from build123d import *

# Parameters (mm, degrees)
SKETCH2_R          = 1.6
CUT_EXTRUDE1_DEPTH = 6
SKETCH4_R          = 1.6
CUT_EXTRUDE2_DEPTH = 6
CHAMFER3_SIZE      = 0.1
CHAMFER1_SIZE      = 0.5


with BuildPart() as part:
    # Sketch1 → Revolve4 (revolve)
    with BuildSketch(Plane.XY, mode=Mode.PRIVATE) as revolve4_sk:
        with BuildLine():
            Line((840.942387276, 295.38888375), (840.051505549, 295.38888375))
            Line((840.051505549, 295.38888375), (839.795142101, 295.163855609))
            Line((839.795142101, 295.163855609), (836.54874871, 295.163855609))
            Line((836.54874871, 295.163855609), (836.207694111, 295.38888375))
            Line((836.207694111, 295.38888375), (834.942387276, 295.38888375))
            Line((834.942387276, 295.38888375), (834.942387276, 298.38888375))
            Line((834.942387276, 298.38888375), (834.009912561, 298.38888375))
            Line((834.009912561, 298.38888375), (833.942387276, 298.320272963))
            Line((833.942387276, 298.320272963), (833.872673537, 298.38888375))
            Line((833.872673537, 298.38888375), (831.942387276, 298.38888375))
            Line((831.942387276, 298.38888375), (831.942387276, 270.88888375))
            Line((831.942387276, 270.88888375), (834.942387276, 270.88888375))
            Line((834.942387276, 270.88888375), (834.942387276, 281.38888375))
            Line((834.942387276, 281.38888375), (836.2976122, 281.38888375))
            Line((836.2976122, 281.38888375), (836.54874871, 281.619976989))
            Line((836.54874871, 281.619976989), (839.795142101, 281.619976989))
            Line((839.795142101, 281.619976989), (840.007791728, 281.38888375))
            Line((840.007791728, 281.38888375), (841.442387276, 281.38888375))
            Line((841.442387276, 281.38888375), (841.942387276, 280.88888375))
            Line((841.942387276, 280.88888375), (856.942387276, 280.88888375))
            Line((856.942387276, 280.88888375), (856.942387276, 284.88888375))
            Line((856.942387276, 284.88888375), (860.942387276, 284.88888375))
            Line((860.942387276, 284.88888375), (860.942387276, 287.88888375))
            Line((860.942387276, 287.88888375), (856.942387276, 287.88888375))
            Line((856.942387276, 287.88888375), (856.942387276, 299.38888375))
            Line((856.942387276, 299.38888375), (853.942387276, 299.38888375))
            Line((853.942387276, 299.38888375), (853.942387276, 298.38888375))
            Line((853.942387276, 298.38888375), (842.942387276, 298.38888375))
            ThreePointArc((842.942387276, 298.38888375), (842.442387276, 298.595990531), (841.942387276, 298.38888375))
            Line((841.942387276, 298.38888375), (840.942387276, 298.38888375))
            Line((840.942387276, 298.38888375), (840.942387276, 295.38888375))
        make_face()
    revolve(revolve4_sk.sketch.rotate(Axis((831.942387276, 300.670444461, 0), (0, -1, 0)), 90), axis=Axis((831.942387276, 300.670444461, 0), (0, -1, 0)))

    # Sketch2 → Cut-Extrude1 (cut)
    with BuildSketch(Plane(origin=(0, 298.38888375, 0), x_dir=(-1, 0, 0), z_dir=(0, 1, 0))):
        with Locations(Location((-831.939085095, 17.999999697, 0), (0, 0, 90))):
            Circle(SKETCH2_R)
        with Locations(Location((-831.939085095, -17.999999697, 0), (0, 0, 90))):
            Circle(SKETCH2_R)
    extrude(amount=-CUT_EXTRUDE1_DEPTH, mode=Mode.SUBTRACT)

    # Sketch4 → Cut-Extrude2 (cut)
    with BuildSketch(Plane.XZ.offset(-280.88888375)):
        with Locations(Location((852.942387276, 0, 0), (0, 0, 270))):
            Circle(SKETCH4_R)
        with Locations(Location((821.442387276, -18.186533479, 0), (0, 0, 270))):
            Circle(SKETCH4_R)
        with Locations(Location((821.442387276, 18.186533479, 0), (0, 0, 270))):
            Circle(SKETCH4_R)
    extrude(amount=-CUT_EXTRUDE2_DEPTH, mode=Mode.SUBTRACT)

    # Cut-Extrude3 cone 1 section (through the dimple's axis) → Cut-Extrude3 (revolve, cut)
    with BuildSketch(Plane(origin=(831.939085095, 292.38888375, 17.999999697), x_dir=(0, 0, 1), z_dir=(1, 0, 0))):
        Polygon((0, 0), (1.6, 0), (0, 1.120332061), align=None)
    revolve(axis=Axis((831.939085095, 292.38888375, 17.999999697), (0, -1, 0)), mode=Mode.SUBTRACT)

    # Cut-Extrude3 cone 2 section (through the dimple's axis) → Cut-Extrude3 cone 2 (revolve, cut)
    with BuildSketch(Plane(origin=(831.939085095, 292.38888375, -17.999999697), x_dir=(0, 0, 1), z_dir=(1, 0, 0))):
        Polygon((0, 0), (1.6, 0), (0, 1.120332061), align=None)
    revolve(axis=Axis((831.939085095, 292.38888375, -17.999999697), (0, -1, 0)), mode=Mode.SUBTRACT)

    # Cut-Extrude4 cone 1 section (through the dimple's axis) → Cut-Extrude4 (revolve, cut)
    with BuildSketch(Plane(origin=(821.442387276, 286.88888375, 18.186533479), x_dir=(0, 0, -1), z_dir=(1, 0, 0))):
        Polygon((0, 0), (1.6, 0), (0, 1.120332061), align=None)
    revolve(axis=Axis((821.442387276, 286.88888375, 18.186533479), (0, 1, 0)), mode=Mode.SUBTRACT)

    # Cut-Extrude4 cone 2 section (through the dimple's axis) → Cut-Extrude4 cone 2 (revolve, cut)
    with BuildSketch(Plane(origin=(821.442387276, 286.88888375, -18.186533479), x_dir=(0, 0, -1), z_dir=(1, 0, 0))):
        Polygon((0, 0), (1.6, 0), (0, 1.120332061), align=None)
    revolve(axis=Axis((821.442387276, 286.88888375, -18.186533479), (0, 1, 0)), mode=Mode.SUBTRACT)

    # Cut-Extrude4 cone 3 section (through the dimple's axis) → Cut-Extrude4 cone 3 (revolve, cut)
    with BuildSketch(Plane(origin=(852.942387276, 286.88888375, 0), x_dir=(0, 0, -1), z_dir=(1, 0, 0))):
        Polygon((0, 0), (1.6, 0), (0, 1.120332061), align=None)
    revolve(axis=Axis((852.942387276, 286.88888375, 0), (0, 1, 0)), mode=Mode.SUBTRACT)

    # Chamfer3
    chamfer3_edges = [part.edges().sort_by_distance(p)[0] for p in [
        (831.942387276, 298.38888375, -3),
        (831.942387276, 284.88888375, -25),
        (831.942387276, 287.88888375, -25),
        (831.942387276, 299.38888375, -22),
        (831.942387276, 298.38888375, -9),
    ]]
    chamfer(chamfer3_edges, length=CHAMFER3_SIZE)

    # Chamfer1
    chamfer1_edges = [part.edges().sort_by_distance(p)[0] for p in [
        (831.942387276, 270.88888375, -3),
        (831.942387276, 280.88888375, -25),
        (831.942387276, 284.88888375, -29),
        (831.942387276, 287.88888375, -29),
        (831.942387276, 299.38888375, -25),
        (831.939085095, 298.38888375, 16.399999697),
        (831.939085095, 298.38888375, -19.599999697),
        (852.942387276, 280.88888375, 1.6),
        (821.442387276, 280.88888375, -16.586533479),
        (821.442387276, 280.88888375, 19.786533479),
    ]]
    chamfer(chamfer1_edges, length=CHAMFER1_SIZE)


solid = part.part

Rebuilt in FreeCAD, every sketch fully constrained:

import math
import FreeCAD as App
import Part
import Sketcher
from FreeCAD import Vector
Q = App.Units.Quantity


def edges_at(feature, points):
    """Names of the edges that pass closest to the given points."""
    edges = feature.Shape.Edges
    near = lambda p: min(range(len(edges)), key=lambda i: edges[i].distToShape(Part.Vertex(*p))[0])
    return sorted({f"Edge{near(p) + 1}" for p in points})


def add_polygon(sketch, points):
    """Adds a closed chain of lines whose ends are joined by coincident constraints."""
    first, n = sketch.GeometryCount, len(points)
    for a, b in zip(points, points[1:] + points[:1]):
        sketch.addGeometry(Part.LineSegment(App.Vector(*a, 0), App.Vector(*b, 0)), False)
    for i in range(n):
        sketch.addConstraint(Sketcher.Constraint("Coincident", first + i, 2, first + (i + 1) % n, 1))

doc = App.newDocument("Part")
body = doc.addObject("PartDesign::Body", "Body")

sketch1 = doc.addObject("Sketcher::SketchObject", "Sketch")
body.addObject(sketch1)
sketch1.AttachmentSupport = (doc.XY_Plane, [""])
sketch1.MapMode = "FlatFace"
sketch1.addGeometry(Part.LineSegment(Vector(840.94, 295.39, 0), Vector(840.05, 295.39, 0)), False)
sketch1.addGeometry(Part.LineSegment(Vector(840.05, 295.39, 0), Vector(839.8, 295.16, 0)), False)
sketch1.addGeometry(Part.LineSegment(Vector(839.8, 295.16, 0), Vector(836.55, 295.16, 0)), False)
sketch1.addGeometry(Part.LineSegment(Vector(836.55, 295.16, 0), Vector(836.21, 295.39, 0)), False)
sketch1.addGeometry(Part.LineSegment(Vector(836.21, 295.39, 0), Vector(834.94, 295.39, 0)), False)
sketch1.addGeometry(Part.LineSegment(Vector(834.94, 295.39, 0), Vector(834.94, 298.39, 0)), False)
sketch1.addGeometry(Part.LineSegment(Vector(834.94, 298.39, 0), Vector(834.01, 298.39, 0)), False)
sketch1.addGeometry(Part.LineSegment(Vector(834.01, 298.39, 0), Vector(833.94, 298.32, 0)), False)
sketch1.addGeometry(Part.LineSegment(Vector(833.94, 298.32, 0), Vector(833.87, 298.39, 0)), False)
sketch1.addGeometry(Part.LineSegment(Vector(833.87, 298.39, 0), Vector(831.94, 298.39, 0)), False)
sketch1.addGeometry(Part.LineSegment(Vector(831.94, 298.39, 0), Vector(831.94, 270.89, 0)), False)
sketch1.addGeometry(Part.LineSegment(Vector(831.94, 270.89, 0), Vector(834.94, 270.89, 0)), False)
sketch1.addGeometry(Part.LineSegment(Vector(834.94, 270.89, 0), Vector(834.94, 281.39, 0)), False)
sketch1.addGeometry(Part.LineSegment(Vector(834.94, 281.39, 0), Vector(836.3, 281.39, 0)), False)
sketch1.addGeometry(Part.LineSegment(Vector(836.3, 281.39, 0), Vector(836.55, 281.62, 0)), False)
sketch1.addGeometry(Part.LineSegment(Vector(836.55, 281.62, 0), Vector(839.8, 281.62, 0)), False)
sketch1.addGeometry(Part.LineSegment(Vector(839.8, 281.62, 0), Vector(840.01, 281.39, 0)), False)
sketch1.addGeometry(Part.LineSegment(Vector(840.01, 281.39, 0), Vector(841.44, 281.39, 0)), False)
sketch1.addGeometry(Part.LineSegment(Vector(841.44, 281.39, 0), Vector(841.94, 280.89, 0)), False)
sketch1.addGeometry(Part.LineSegment(Vector(841.94, 280.89, 0), Vector(856.94, 280.89, 0)), False)
sketch1.addGeometry(Part.LineSegment(Vector(856.94, 280.89, 0), Vector(856.94, 284.89, 0)), False)
sketch1.addGeometry(Part.LineSegment(Vector(856.94, 284.89, 0), Vector(860.94, 284.89, 0)), False)
sketch1.addGeometry(Part.LineSegment(Vector(860.94, 284.89, 0), Vector(860.94, 287.89, 0)), False)
sketch1.addGeometry(Part.LineSegment(Vector(860.94, 287.89, 0), Vector(856.94, 287.89, 0)), False)
sketch1.addGeometry(Part.LineSegment(Vector(856.94, 287.89, 0), Vector(856.94, 299.39, 0)), False)
sketch1.addGeometry(Part.LineSegment(Vector(856.94, 299.39, 0), Vector(853.94, 299.39, 0)), False)
sketch1.addGeometry(Part.LineSegment(Vector(853.94, 299.39, 0), Vector(853.94, 298.39, 0)), False)
sketch1.addGeometry(Part.LineSegment(Vector(853.94, 298.39, 0), Vector(842.94, 298.39, 0)), False)
sketch1.addGeometry(Part.ArcOfCircle(Part.Circle(Vector(842.44, 297.89, 0), Vector(0, 0, 1), 0.71), math.radians(45), math.radians(135)), False)
sketch1.addGeometry(Part.LineSegment(Vector(841.94, 298.39, 0), Vector(840.94, 298.39, 0)), False)
sketch1.addGeometry(Part.LineSegment(Vector(840.94, 298.39, 0), Vector(840.94, 295.39, 0)), False)
sketch1.addGeometry(Part.LineSegment(Vector(831.94, 299.39, 0), Vector(831.94, 270.89, 0)), True)
sketch1.addConstraint(Sketcher.Constraint("Coincident", 0, 2, 1, 1))
sketch1.addConstraint(Sketcher.Constraint("Coincident", 1, 2, 2, 1))
sketch1.addConstraint(Sketcher.Constraint("Coincident", 2, 2, 3, 1))
sketch1.addConstraint(Sketcher.Constraint("Coincident", 3, 2, 4, 1))
sketch1.addConstraint(Sketcher.Constraint("Coincident", 4, 2, 5, 1))
sketch1.addConstraint(Sketcher.Constraint("Coincident", 5, 2, 6, 1))
sketch1.addConstraint(Sketcher.Constraint("Coincident", 6, 2, 7, 1))
sketch1.addConstraint(Sketcher.Constraint("Coincident", 7, 2, 8, 1))
sketch1.addConstraint(Sketcher.Constraint("Coincident", 8, 2, 9, 1))
sketch1.addConstraint(Sketcher.Constraint("Coincident", 9, 2, 10, 1))
sketch1.addConstraint(Sketcher.Constraint("Coincident", 10, 2, 11, 1))
sketch1.addConstraint(Sketcher.Constraint("Coincident", 11, 2, 12, 1))
sketch1.addConstraint(Sketcher.Constraint("Coincident", 12, 2, 13, 1))
sketch1.addConstraint(Sketcher.Constraint("Coincident", 13, 2, 14, 1))
sketch1.addConstraint(Sketcher.Constraint("Coincident", 14, 2, 15, 1))
sketch1.addConstraint(Sketcher.Constraint("Coincident", 15, 2, 16, 1))
sketch1.addConstraint(Sketcher.Constraint("Coincident", 16, 2, 17, 1))
sketch1.addConstraint(Sketcher.Constraint("Coincident", 17, 2, 18, 1))
sketch1.addConstraint(Sketcher.Constraint("Coincident", 18, 2, 19, 1))
sketch1.addConstraint(Sketcher.Constraint("Coincident", 19, 2, 20, 1))
sketch1.addConstraint(Sketcher.Constraint("Coincident", 20, 2, 21, 1))
sketch1.addConstraint(Sketcher.Constraint("Coincident", 21, 2, 22, 1))
sketch1.addConstraint(Sketcher.Constraint("Coincident", 22, 2, 23, 1))
sketch1.addConstraint(Sketcher.Constraint("Coincident", 23, 2, 24, 1))
sketch1.addConstraint(Sketcher.Constraint("Coincident", 24, 2, 25, 1))
sketch1.addConstraint(Sketcher.Constraint("Coincident", 25, 2, 26, 1))
sketch1.addConstraint(Sketcher.Constraint("Coincident", 26, 2, 27, 1))
sketch1.addConstraint(Sketcher.Constraint("Coincident", 27, 2, 28, 1))
sketch1.addConstraint(Sketcher.Constraint("Coincident", 28, 2, 29, 1))
sketch1.addConstraint(Sketcher.Constraint("Coincident", 29, 2, 30, 1))
sketch1.addConstraint(Sketcher.Constraint("Coincident", 30, 2, 0, 1))
sketch1.addConstraint(Sketcher.Constraint("Horizontal", 0))
sketch1.addConstraint(Sketcher.Constraint("Horizontal", 2))
sketch1.addConstraint(Sketcher.Constraint("Horizontal", 4))
sketch1.addConstraint(Sketcher.Constraint("Vertical", 5))
sketch1.addConstraint(Sketcher.Constraint("Horizontal", 6))
sketch1.addConstraint(Sketcher.Constraint("Horizontal", 9))
sketch1.addConstraint(Sketcher.Constraint("Vertical", 10))
sketch1.addConstraint(Sketcher.Constraint("Horizontal", 11))
sketch1.addConstraint(Sketcher.Constraint("Vertical", 12))
sketch1.addConstraint(Sketcher.Constraint("Horizontal", 13))
sketch1.addConstraint(Sketcher.Constraint("Horizontal", 15))
sketch1.addConstraint(Sketcher.Constraint("Horizontal", 17))
sketch1.addConstraint(Sketcher.Constraint("Horizontal", 19))
sketch1.addConstraint(Sketcher.Constraint("Vertical", 20))
sketch1.addConstraint(Sketcher.Constraint("Horizontal", 21))
sketch1.addConstraint(Sketcher.Constraint("Vertical", 22))
sketch1.addConstraint(Sketcher.Constraint("Horizontal", 23))
sketch1.addConstraint(Sketcher.Constraint("Vertical", 24))
sketch1.addConstraint(Sketcher.Constraint("Horizontal", 25))
sketch1.addConstraint(Sketcher.Constraint("Vertical", 26))
sketch1.addConstraint(Sketcher.Constraint("Horizontal", 27))
sketch1.addConstraint(Sketcher.Constraint("Horizontal", 29))
sketch1.addConstraint(Sketcher.Constraint("Vertical", 30))
sketch1.addConstraint(Sketcher.Constraint("Vertical", 31))
sketch1.addConstraint(Sketcher.Constraint("Coincident", 31, 2, 10, 2))
sketch1.addConstraint(Sketcher.Constraint("Perpendicular", 7, 8))
sketch1.addConstraint(Sketcher.Constraint("Perpendicular", 14, 16))
sketch1.addConstraint(Sketcher.Constraint("Horizontal", 0, 2, 3, 2))
sketch1.addConstraint(Sketcher.Constraint("Horizontal", 6, 2, 8, 2))
sketch1.addConstraint(Sketcher.Constraint("Horizontal", 13, 2, 16, 2))
sketch1.addConstraint(Sketcher.Constraint("Horizontal", 9, 2, 26, 2))
sketch1.addConstraint(Sketcher.Constraint("Horizontal", 27, 2, 28, 2))
sketch1.addConstraint(Sketcher.Constraint("Horizontal", 25, 2, 31, 1))
sketch1.addConstraint(Sketcher.Constraint("Vertical", 5, 2, 11, 2))
sketch1.addConstraint(Sketcher.Constraint("Vertical", 2, 2, 14, 2))
sketch1.addConstraint(Sketcher.Constraint("Vertical", 1, 2, 15, 2))
sketch1.addConstraint(Sketcher.Constraint("Vertical", 20, 2, 23, 2))
sketch1.addConstraint(Sketcher.Constraint("Vertical", 18, 2, 28, 2))
sketch1.addConstraint(Sketcher.Constraint("Equal", 11, 25))
sketch1.addConstraint(Sketcher.Constraint("Equal", 25, 5))
sketch1.addConstraint(Sketcher.Constraint("Equal", 23, 20))
sketch1.addConstraint(Sketcher.Constraint("Equal", 5, 22))
sketch1.addConstraint(Sketcher.Constraint("Equal", 29, 26))
sketch1.addConstraint(Sketcher.Constraint("DistanceX", 11, 1, 11, 2, Q("3 mm")))
sketch1.addConstraint(Sketcher.Constraint("DistanceX", 19, 1, 19, 2, Q("15 mm")))
sketch1.addConstraint(Sketcher.Constraint("DistanceX", 21, 1, 21, 2, Q("4 mm")))
sketch1.addConstraint(Sketcher.Constraint("DistanceX", 27, 2, 27, 1, Q("11 mm")))
sketch1.addConstraint(Sketcher.Constraint("DistanceX", 29, 2, 29, 1, Q("1 mm")))
sketch1.addConstraint(Sketcher.Constraint("Angle", 18, Q("-45 deg")))
sketch1.addConstraint(Sketcher.Constraint("DistanceY", 10, 2, 10, 1, Q("27.5 mm")))
sketch1.addConstraint(Sketcher.Constraint("DistanceY", 12, 1, 12, 2, Q("10.5 mm")))
sketch1.addConstraint(Sketcher.Constraint("DistanceY", 24, 1, 24, 2, Q("11.5 mm")))
sketch1.addConstraint(Sketcher.Constraint("DistanceX", 7, 2, 5, 2, Q("1 mm")))
sketch1.addConstraint(Sketcher.Constraint("DistanceY", 0, 2, 28, 3, Q("2.5 mm")))
sketch1.addConstraint(Sketcher.Constraint("DistanceX", 4, 2, 28, 3, Q("7.5 mm")))
sketch1.addConstraint(Sketcher.Constraint("DistanceX", 0, 2, 0, 1, Q("0.890882 mm")))
sketch1.addConstraint(Sketcher.Constraint("DistanceX", 2, 2, 2, 1, Q("3.246393 mm")))
sketch1.addConstraint(Sketcher.Constraint("DistanceX", 4, 2, 4, 1, Q("1.265307 mm")))
sketch1.addConstraint(Sketcher.Constraint("DistanceX", 6, 2, 6, 1, Q("0.932475 mm")))
sketch1.addConstraint(Sketcher.Constraint("DistanceX", 9, 2, 9, 1, Q("1.930286 mm")))
sketch1.addConstraint(Sketcher.Constraint("DistanceX", 13, 1, 13, 2, Q("1.355225 mm")))
sketch1.addConstraint(Sketcher.Constraint("DistanceX", 17, 1, 17, 2, Q("1.434596 mm")))
sketch1.addConstraint(Sketcher.Constraint("DistanceX", -1, 1, 2, 2, Q("836.548749 mm")))
sketch1.addConstraint(Sketcher.Constraint("DistanceX", -1, 1, 16, 2, Q("840.007792 mm")))
sketch1.addConstraint(Sketcher.Constraint("DistanceY", 1, 2, 0, 2, Q("0.225028 mm")))
sketch1.addConstraint(Sketcher.Constraint("DistanceY", -1, 1, 28, 3, Q("297.888884 mm")))
revolution = doc.addObject("PartDesign::Revolution", "Revolution")
body.addObject(revolution)
revolution.Profile = sketch1
revolution.ReferenceAxis = (sketch1, ["Axis0"])
revolution.Angle = 360

sketch2 = doc.addObject("Sketcher::SketchObject", "Sketch001")
body.addObject(sketch2)
sketch2.AttachmentSupport = (doc.XZ_Plane, [""])
sketch2.MapMode = "FlatFace"
sketch2.AttachmentOffset = App.Placement(Vector(0, 0, -298.388884), App.Rotation())
sketch2.addGeometry(Part.Circle(Vector(831.9, 18, 0), Vector(0, 0, 1), 1.6), False)
sketch2.addGeometry(Part.Circle(Vector(831.9, -18, 0), Vector(0, 0, 1), 1.6), False)
sketch2.addConstraint(Sketcher.Constraint("Equal", 0, 1))
sketch2.addConstraint(Sketcher.Constraint("Symmetric", 0, 3, 1, 3, -1))
sketch2.addConstraint(Sketcher.Constraint("Diameter", 0, Q("3.2 mm")))
sketch2.addConstraint(Sketcher.Constraint("DistanceY", -1, 1, 0, 3, Q("18 mm")))
sketch2.addConstraint(Sketcher.Constraint("DistanceX", -1, 1, 0, 3, Q("831.939085 mm")))
pocket1 = doc.addObject("PartDesign::Pocket", "Pocket")
body.addObject(pocket1)
pocket1.Profile = sketch2
pocket1.Length = 6
pocket1.Reversed = True

sketch3 = doc.addObject("Sketcher::SketchObject", "Sketch002")
body.addObject(sketch3)
sketch3.AttachmentSupport = (doc.XZ_Plane, [""])
sketch3.MapMode = "FlatFace"
sketch3.AttachmentOffset = App.Placement(Vector(0, 0, -280.888884), App.Rotation())
sketch3.addGeometry(Part.Circle(Vector(852.9, 0, 0), Vector(0, 0, 1), 1.6), False)
sketch3.addGeometry(Part.Circle(Vector(821.4, -18.2, 0), Vector(0, 0, 1), 1.6), False)
sketch3.addGeometry(Part.Circle(Vector(821.4, 18.2, 0), Vector(0, 0, 1), 1.6), False)
sketch3.addConstraint(Sketcher.Constraint("Equal", 0, 1))
sketch3.addConstraint(Sketcher.Constraint("Equal", 1, 2))
sketch3.addConstraint(Sketcher.Constraint("Symmetric", 1, 3, 2, 3, -1))
sketch3.addConstraint(Sketcher.Constraint("PointOnObject", 0, 3, -1))
sketch3.addConstraint(Sketcher.Constraint("Diameter", 0, Q("3.2 mm")))
sketch3.addConstraint(Sketcher.Constraint("DistanceX", 1, 3, 0, 3, Q("31.5 mm")))
sketch3.addConstraint(Sketcher.Constraint("DistanceX", -1, 1, 0, 3, Q("852.942387 mm")))
sketch3.addConstraint(Sketcher.Constraint("DistanceY", 1, 3, -1, 1, Q("18.186533 mm")))
pocket2 = doc.addObject("PartDesign::Pocket", "Pocket001")
body.addObject(pocket2)
pocket2.Profile = sketch3
pocket2.Length = 6

sketch4 = doc.addObject("Sketcher::SketchObject", "Sketch003")
body.addObject(sketch4)
sketch4.AttachmentSupport = (doc.YZ_Plane, [""])
sketch4.MapMode = "FlatFace"
sketch4.AttachmentOffset = App.Placement(Vector(0, 0, 831.939085), App.Rotation())
add_polygon(sketch4, [(292.4, 18), (292.4, 19.6), (291.3, 18)])
sketch4.addGeometry(Part.LineSegment(Vector(292.4, 18, 0), Vector(291.3, 18, 0)), True)
sketch4.addConstraint(Sketcher.Constraint("Vertical", 0))
sketch4.addConstraint(Sketcher.Constraint("Horizontal", 2))
sketch4.addConstraint(Sketcher.Constraint("Horizontal", 3))
sketch4.addConstraint(Sketcher.Constraint("Coincident", 3, 1, 2, 2))
sketch4.addConstraint(Sketcher.Constraint("Equal", 2, 3))
sketch4.addConstraint(Sketcher.Constraint("Angle", 1, Q("-125 deg")))
sketch4.addConstraint(Sketcher.Constraint("DistanceY", 0, 1, 0, 2, Q("1.6 mm")))
sketch4.addConstraint(Sketcher.Constraint("DistanceY", -1, 1, 1, 2, Q("18 mm")))
sketch4.addConstraint(Sketcher.Constraint("DistanceX", -1, 1, 1, 2, Q("291.268552 mm")))
groove = doc.addObject("PartDesign::Groove", "Groove")
body.addObject(groove)
groove.Profile = sketch4
groove.ReferenceAxis = (sketch4, ["Axis0"])
groove.Angle = 360

sketch5 = doc.addObject("Sketcher::SketchObject", "Sketch004")
body.addObject(sketch5)
sketch5.AttachmentSupport = (doc.YZ_Plane, [""])
sketch5.MapMode = "FlatFace"
sketch5.AttachmentOffset = App.Placement(Vector(0, 0, 831.939085), App.Rotation())
add_polygon(sketch5, [(292.4, -18), (292.4, -16.4), (291.3, -18)])
sketch5.addGeometry(Part.LineSegment(Vector(292.4, -18, 0), Vector(291.3, -18, 0)), True)
sketch5.addConstraint(Sketcher.Constraint("Vertical", 0))
sketch5.addConstraint(Sketcher.Constraint("Horizontal", 2))
sketch5.addConstraint(Sketcher.Constraint("Horizontal", 3))
sketch5.addConstraint(Sketcher.Constraint("Coincident", 3, 1, 2, 2))
sketch5.addConstraint(Sketcher.Constraint("Equal", 2, 3))
sketch5.addConstraint(Sketcher.Constraint("Angle", 1, Q("-125 deg")))
sketch5.addConstraint(Sketcher.Constraint("DistanceY", 0, 1, 0, 2, Q("1.6 mm")))
sketch5.addConstraint(Sketcher.Constraint("DistanceY", 1, 2, -1, 1, Q("18 mm")))
sketch5.addConstraint(Sketcher.Constraint("DistanceX", -1, 1, 1, 2, Q("291.268552 mm")))
groove2 = doc.addObject("PartDesign::Groove", "Groove001")
body.addObject(groove2)
groove2.Profile = sketch5
groove2.ReferenceAxis = (sketch5, ["Axis0"])
groove2.Angle = 360

sketch6 = doc.addObject("Sketcher::SketchObject", "Sketch005")
body.addObject(sketch6)
sketch6.AttachmentSupport = (doc.YZ_Plane, [""])
sketch6.MapMode = "FlatFace"
sketch6.AttachmentOffset = App.Placement(Vector(0, 0, 821.442387), App.Rotation())
add_polygon(sketch6, [(286.9, 18.2), (286.9, 16.6), (288, 18.2)])
sketch6.addGeometry(Part.LineSegment(Vector(286.9, 18.2, 0), Vector(288, 18.2, 0)), True)
sketch6.addConstraint(Sketcher.Constraint("Vertical", 0))
sketch6.addConstraint(Sketcher.Constraint("Horizontal", 2))
sketch6.addConstraint(Sketcher.Constraint("Horizontal", 3))
sketch6.addConstraint(Sketcher.Constraint("Coincident", 3, 1, 2, 2))
sketch6.addConstraint(Sketcher.Constraint("Equal", 2, 3))
sketch6.addConstraint(Sketcher.Constraint("Angle", 1, Q("55 deg")))
sketch6.addConstraint(Sketcher.Constraint("DistanceY", 0, 2, 0, 1, Q("1.6 mm")))
sketch6.addConstraint(Sketcher.Constraint("DistanceX", -1, 1, 0, 2, Q("286.888884 mm")))
sketch6.addConstraint(Sketcher.Constraint("DistanceY", -1, 1, 0, 2, Q("16.586533 mm")))
groove3 = doc.addObject("PartDesign::Groove", "Groove002")
body.addObject(groove3)
groove3.Profile = sketch6
groove3.ReferenceAxis = (sketch6, ["Axis0"])
groove3.Angle = 360

sketch7 = doc.addObject("Sketcher::SketchObject", "Sketch006")
body.addObject(sketch7)
sketch7.AttachmentSupport = (doc.YZ_Plane, [""])
sketch7.MapMode = "FlatFace"
sketch7.AttachmentOffset = App.Placement(Vector(0, 0, 821.442387), App.Rotation())
add_polygon(sketch7, [(286.9, -18.2), (286.9, -19.8), (288, -18.2)])
sketch7.addGeometry(Part.LineSegment(Vector(286.9, -18.2, 0), Vector(288, -18.2, 0)), True)
sketch7.addConstraint(Sketcher.Constraint("Vertical", 0))
sketch7.addConstraint(Sketcher.Constraint("Horizontal", 2))
sketch7.addConstraint(Sketcher.Constraint("Horizontal", 3))
sketch7.addConstraint(Sketcher.Constraint("Coincident", 3, 1, 2, 2))
sketch7.addConstraint(Sketcher.Constraint("Equal", 2, 3))
sketch7.addConstraint(Sketcher.Constraint("Angle", 1, Q("55 deg")))
sketch7.addConstraint(Sketcher.Constraint("DistanceY", 0, 2, 0, 1, Q("1.6 mm")))
sketch7.addConstraint(Sketcher.Constraint("DistanceX", -1, 1, 0, 2, Q("286.888884 mm")))
sketch7.addConstraint(Sketcher.Constraint("DistanceY", 0, 2, -1, 1, Q("19.786533 mm")))
groove4 = doc.addObject("PartDesign::Groove", "Groove003")
body.addObject(groove4)
groove4.Profile = sketch7
groove4.ReferenceAxis = (sketch7, ["Axis0"])
groove4.Angle = 360

sketch8 = doc.addObject("Sketcher::SketchObject", "Sketch007")
body.addObject(sketch8)
sketch8.AttachmentSupport = (doc.YZ_Plane, [""])
sketch8.MapMode = "FlatFace"
sketch8.AttachmentOffset = App.Placement(Vector(0, 0, 852.942387), App.Rotation())
add_polygon(sketch8, [(286.9, 0), (286.9, -1.6), (288, 0)])
sketch8.addConstraint(Sketcher.Constraint("Vertical", 0))
sketch8.addConstraint(Sketcher.Constraint("Horizontal", 2))
sketch8.addConstraint(Sketcher.Constraint("PointOnObject", 1, 2, -1))
sketch8.addConstraint(Sketcher.Constraint("Angle", 1, Q("55 deg")))
sketch8.addConstraint(Sketcher.Constraint("DistanceY", 0, 2, 0, 1, Q("1.6 mm")))
sketch8.addConstraint(Sketcher.Constraint("DistanceX", -1, 1, 0, 2, Q("286.888884 mm")))
groove5 = doc.addObject("PartDesign::Groove", "Groove004")
body.addObject(groove5)
groove5.Profile = sketch8
groove5.ReferenceAxis = (sketch8, ["H_Axis"])
groove5.Angle = 360
doc.recompute()

chamfer = doc.addObject("PartDesign::Chamfer", "Chamfer")
body.addObject(chamfer)
chamfer.Base = (groove5, edges_at(groove5, [
    (831.942, 298.389, -3),
    (831.942, 284.889, -25),
    (831.942, 287.889, -25),
    (831.942, 299.389, -22),
    (831.942, 298.389, -9),
]))
chamfer.Size = 0.1
doc.recompute()

chamfer2 = doc.addObject("PartDesign::Chamfer", "Chamfer001")
body.addObject(chamfer2)
chamfer2.Base = (chamfer, edges_at(chamfer, [
    (831.942, 270.889, -3),
    (831.942, 280.889, -25),
    (831.942, 284.889, -29),
    (831.942, 287.889, -29),
    (831.942, 299.389, -25),
    (831.939, 298.389, 16.4),
    (831.939, 298.389, -19.6),
    (852.942, 280.889, 1.6),
    (821.442, 280.889, -16.587),
    (821.442, 280.889, 19.787),
]))
chamfer2.Size = 0.5

doc.recompute()
